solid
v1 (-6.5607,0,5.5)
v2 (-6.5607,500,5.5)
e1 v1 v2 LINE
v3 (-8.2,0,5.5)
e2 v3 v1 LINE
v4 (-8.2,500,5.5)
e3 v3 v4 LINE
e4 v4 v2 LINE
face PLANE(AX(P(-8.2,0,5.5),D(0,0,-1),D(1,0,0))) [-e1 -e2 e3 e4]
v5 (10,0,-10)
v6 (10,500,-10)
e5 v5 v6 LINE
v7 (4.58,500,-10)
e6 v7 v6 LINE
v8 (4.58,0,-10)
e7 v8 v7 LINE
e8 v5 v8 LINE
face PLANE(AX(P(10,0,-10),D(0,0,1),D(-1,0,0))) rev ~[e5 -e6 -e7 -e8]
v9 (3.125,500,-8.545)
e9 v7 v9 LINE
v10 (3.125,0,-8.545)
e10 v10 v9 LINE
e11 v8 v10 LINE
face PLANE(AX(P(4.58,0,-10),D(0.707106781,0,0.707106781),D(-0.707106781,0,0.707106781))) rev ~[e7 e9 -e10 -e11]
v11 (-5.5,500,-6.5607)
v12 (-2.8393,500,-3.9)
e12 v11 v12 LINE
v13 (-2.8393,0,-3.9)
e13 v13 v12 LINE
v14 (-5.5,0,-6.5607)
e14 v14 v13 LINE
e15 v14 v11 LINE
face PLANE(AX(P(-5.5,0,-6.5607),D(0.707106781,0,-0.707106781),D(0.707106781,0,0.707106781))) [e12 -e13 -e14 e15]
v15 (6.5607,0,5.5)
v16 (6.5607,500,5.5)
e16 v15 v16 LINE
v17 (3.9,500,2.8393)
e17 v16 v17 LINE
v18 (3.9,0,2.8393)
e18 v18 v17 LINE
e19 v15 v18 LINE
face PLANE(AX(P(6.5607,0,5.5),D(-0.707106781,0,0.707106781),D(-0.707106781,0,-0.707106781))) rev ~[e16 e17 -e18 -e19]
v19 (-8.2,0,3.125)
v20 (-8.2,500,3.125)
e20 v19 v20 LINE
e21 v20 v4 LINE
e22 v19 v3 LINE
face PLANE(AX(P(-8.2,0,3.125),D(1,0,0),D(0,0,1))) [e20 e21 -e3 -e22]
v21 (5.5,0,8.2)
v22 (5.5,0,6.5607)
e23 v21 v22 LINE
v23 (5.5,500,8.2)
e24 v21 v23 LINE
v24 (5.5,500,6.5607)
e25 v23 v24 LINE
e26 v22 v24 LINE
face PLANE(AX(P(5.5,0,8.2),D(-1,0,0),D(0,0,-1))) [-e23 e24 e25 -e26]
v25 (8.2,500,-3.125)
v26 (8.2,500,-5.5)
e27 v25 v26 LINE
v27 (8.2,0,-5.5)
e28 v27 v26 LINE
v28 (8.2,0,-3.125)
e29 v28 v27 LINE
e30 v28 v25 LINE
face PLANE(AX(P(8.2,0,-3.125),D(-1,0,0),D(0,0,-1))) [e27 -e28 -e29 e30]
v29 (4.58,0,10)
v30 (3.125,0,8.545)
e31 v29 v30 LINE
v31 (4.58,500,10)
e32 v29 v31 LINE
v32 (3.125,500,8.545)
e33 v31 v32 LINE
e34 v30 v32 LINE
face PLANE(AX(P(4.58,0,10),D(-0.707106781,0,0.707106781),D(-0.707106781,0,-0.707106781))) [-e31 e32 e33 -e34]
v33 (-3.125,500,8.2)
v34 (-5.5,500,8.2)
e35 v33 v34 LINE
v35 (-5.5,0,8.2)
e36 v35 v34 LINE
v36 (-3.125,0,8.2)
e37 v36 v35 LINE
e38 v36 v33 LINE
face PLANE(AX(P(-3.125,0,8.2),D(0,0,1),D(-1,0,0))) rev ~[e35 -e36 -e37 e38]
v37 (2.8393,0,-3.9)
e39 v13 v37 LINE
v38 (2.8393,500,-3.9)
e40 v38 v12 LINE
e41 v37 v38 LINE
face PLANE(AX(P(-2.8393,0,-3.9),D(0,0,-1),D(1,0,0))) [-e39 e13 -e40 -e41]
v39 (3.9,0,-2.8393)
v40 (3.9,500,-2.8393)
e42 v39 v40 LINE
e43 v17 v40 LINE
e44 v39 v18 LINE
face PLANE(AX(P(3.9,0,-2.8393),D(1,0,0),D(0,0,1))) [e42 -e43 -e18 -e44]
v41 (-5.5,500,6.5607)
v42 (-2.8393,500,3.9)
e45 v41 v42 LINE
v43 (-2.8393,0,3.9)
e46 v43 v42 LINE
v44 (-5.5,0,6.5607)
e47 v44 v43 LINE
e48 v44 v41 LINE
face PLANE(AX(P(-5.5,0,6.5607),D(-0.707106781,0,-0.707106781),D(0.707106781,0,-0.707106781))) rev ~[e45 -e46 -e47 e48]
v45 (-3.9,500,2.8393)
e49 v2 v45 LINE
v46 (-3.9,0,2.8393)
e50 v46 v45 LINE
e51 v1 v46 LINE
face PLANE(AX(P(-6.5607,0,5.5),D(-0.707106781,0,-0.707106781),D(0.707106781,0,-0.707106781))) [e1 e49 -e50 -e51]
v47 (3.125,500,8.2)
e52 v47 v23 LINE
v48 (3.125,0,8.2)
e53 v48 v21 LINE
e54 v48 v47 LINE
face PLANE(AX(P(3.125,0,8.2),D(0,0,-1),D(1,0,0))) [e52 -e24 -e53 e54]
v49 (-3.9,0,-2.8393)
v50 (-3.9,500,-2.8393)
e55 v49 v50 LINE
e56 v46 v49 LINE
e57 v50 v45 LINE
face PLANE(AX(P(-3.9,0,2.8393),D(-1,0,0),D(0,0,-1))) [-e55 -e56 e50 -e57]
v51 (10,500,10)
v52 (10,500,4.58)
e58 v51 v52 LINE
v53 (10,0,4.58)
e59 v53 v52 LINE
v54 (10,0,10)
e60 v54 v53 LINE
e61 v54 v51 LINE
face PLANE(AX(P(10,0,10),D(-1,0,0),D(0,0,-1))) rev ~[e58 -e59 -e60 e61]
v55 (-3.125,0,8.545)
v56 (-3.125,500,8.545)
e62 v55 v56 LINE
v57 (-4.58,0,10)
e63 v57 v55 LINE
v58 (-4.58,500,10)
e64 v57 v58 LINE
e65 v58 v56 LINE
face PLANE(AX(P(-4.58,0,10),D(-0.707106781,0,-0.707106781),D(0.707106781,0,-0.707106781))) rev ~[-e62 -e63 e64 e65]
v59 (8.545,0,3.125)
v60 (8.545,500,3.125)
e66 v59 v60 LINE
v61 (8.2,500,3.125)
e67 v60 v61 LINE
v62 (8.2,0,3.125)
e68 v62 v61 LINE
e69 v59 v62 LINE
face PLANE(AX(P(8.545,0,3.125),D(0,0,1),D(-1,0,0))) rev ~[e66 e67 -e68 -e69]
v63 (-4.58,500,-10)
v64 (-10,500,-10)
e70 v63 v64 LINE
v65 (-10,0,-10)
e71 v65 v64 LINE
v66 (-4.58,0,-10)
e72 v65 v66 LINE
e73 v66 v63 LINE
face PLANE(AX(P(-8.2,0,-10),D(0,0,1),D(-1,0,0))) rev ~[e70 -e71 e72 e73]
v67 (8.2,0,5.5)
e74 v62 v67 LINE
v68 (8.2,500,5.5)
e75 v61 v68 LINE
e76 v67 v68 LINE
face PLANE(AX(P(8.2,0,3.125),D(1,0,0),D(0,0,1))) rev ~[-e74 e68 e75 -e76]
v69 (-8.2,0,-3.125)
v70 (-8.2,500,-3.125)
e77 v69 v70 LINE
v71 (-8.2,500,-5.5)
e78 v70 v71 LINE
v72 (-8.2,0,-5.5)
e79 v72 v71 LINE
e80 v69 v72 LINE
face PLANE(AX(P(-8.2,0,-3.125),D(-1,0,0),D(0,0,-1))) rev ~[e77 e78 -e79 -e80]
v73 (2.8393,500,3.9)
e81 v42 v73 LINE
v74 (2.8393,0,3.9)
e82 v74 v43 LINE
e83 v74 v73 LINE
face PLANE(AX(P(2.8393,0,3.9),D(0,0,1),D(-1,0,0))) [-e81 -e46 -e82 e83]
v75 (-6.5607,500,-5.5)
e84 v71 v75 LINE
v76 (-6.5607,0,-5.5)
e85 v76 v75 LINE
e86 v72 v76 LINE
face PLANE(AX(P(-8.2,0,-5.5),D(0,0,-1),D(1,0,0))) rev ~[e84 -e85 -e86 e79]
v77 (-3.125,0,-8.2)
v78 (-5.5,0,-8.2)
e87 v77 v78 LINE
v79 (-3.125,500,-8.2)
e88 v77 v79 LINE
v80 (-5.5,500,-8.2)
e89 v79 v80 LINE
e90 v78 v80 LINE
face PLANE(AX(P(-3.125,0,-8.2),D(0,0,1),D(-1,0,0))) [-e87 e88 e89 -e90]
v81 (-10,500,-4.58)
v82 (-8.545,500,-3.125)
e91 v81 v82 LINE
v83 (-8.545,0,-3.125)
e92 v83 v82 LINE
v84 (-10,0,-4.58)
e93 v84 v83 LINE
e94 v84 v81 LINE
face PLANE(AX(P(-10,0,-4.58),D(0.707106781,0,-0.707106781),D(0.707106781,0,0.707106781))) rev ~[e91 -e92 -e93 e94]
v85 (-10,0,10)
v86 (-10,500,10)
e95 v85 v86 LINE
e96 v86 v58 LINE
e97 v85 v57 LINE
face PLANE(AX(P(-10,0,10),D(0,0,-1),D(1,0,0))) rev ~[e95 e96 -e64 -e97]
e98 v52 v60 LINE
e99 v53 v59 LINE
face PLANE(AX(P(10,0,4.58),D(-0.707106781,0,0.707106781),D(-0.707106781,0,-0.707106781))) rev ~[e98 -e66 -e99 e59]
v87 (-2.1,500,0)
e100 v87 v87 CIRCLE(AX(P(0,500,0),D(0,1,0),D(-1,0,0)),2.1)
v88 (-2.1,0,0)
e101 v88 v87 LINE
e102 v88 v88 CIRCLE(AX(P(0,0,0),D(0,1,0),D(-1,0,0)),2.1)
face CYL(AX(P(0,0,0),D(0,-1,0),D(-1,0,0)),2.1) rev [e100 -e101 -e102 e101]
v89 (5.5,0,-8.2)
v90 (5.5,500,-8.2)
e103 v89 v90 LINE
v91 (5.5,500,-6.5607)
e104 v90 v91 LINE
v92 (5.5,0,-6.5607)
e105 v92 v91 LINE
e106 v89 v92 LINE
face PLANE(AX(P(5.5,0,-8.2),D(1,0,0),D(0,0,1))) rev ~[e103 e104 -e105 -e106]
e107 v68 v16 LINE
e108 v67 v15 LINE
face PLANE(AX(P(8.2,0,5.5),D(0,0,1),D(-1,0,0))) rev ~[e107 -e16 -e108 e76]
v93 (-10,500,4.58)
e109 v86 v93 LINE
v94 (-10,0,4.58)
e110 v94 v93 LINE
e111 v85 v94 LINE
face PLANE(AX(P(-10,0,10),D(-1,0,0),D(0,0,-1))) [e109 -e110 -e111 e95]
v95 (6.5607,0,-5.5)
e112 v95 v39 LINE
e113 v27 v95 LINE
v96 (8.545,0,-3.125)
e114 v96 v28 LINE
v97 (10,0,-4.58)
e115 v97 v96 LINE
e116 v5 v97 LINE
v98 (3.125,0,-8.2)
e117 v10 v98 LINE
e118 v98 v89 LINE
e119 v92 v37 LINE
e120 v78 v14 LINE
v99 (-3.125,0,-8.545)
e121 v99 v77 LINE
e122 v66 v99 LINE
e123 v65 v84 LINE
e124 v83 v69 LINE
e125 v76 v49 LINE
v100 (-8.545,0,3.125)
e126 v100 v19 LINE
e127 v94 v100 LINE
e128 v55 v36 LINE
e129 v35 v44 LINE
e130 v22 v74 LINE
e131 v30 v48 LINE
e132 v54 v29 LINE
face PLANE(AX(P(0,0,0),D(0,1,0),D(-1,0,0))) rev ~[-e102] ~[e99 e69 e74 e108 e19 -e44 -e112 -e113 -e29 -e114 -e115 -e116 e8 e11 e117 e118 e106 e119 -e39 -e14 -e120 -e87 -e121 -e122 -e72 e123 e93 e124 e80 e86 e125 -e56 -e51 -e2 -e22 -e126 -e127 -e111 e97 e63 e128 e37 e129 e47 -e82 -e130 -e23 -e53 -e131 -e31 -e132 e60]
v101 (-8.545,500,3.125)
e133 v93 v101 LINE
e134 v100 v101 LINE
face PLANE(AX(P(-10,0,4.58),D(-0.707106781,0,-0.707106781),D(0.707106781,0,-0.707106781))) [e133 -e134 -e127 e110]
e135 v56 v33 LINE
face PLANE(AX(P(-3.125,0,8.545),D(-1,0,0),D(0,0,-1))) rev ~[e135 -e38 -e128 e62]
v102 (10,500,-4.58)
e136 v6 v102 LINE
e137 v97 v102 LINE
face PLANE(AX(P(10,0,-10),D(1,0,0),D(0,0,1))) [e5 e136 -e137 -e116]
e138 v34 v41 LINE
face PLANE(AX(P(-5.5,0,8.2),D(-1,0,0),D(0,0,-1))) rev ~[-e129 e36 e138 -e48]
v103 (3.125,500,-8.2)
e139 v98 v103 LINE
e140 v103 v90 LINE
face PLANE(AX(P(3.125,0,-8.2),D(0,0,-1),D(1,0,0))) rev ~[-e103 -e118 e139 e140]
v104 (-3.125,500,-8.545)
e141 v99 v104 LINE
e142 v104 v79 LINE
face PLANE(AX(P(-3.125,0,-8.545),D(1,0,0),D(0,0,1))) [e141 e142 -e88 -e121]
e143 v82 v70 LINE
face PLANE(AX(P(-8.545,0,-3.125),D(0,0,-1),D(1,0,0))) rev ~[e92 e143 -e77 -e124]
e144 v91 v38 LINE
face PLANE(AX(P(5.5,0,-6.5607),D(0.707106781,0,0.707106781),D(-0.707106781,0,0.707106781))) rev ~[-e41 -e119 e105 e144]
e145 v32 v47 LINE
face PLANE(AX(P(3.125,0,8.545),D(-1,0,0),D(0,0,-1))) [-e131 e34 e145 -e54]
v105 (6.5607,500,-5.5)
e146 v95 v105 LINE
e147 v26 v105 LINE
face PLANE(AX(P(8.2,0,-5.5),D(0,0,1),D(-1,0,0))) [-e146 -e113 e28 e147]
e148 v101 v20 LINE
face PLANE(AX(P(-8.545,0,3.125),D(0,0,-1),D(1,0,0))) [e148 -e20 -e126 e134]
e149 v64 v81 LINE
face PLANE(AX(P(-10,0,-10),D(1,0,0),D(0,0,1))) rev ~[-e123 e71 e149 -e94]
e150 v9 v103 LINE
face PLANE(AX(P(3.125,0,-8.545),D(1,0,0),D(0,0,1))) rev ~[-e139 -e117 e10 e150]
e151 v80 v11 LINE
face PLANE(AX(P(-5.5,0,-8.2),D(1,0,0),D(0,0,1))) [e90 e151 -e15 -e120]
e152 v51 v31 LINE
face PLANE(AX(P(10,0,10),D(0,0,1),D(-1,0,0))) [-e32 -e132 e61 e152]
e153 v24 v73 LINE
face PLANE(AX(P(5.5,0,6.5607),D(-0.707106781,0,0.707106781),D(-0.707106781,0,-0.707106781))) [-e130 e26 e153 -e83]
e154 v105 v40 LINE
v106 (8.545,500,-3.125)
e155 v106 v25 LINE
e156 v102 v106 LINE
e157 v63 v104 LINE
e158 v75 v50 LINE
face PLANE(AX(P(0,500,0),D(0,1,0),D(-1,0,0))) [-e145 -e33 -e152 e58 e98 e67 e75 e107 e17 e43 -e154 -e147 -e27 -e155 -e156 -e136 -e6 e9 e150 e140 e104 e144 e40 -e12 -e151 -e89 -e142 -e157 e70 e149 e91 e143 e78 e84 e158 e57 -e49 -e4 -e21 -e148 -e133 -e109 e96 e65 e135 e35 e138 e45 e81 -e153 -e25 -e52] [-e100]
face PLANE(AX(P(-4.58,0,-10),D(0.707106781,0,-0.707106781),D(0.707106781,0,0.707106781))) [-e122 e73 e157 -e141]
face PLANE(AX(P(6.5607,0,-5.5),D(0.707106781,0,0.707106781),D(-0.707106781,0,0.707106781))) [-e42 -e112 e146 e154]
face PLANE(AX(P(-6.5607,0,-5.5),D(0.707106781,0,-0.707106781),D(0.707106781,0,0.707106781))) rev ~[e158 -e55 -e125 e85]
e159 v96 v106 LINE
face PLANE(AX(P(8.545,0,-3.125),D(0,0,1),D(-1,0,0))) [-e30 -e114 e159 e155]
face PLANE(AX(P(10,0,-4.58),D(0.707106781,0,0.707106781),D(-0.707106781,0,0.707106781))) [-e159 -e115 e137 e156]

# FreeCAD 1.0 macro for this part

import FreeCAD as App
import Part
import Sketcher
from FreeCAD import Vector
Q = App.Units.Quantity


def add_polygon(sketch, points):
    """Adds a closed chain of lines whose ends are joined by coincident constraints."""
    first, n = sketch.GeometryCount, len(points)
    for a, b in zip(points, points[1:] + points[:1]):
        sketch.addGeometry(Part.LineSegment(App.Vector(*a, 0), App.Vector(*b, 0)), False)
    for i in range(n):
        sketch.addConstraint(Sketcher.Constraint("Coincident", first + i, 2, first + (i + 1) % n, 1))

doc = App.newDocument("Part")
body = doc.addObject("PartDesign::Body", "Body")

sketch1 = doc.addObject("Sketcher::SketchObject", "Sketch")
body.addObject(sketch1)
sketch1.AttachmentSupport = (doc.XZ_Plane, [""])
sketch1.MapMode = "FlatFace"
add_polygon(sketch1, [(10, -4.58), (10, -10), (4.58, -10), (3.12, -8.54), (3.12, -8.2), (5.5, -8.2), (5.5, -6.56), (2.84, -3.9), (-2.84, -3.9), (-5.5, -6.56), (-5.5, -8.2), (-3.12, -8.2), (-3.12, -8.54), (-4.58, -10), (-10, -10), (-10, -4.58), (-8.54, -3.12), (-8.2, -3.12), (-8.2, -5.5), (-6.56, -5.5), (-3.9, -2.84), (-3.9, 2.84), (-6.56, 5.5), (-8.2, 5.5), (-8.2, 3.12), (-8.54, 3.12), (-10, 4.58), (-10, 10), (-4.58, 10), (-3.12, 8.54), (-3.12, 8.2), (-5.5, 8.2), (-5.5, 6.56), (-2.84, 3.9), (2.84, 3.9), (5.5, 6.56), (5.5, 8.2), (3.12, 8.2), (3.12, 8.54), (4.58, 10), (10, 10), (10, 4.58), (8.54, 3.12), (8.2, 3.12), (8.2, 5.5), (6.56, 5.5), (3.9, 2.84), (3.9, -2.84), (6.56, -5.5), (8.2, -5.5), (8.2, -3.12), (8.54, -3.12)])
sketch1.addGeometry(Part.Circle(Vector(0, 0, 0), Vector(0, 0, 1), 2.1), False)
sketch1.addConstraint([
    Sketcher.Constraint("Vertical", 0),
    Sketcher.Constraint("Horizontal", 1),
    Sketcher.Constraint("Vertical", 3),
    Sketcher.Constraint("Horizontal", 4),
    Sketcher.Constraint("Vertical", 5),
    Sketcher.Constraint("Horizontal", 7),
    Sketcher.Constraint("Vertical", 9),
    Sketcher.Constraint("Horizontal", 10),
    Sketcher.Constraint("Vertical", 11),
    Sketcher.Constraint("Horizontal", 13),
    Sketcher.Constraint("Vertical", 14),
    Sketcher.Constraint("Horizontal", 16),
    Sketcher.Constraint("Vertical", 17),
    Sketcher.Constraint("Horizontal", 18),
    Sketcher.Constraint("Vertical", 20),
    Sketcher.Constraint("Horizontal", 22),
    Sketcher.Constraint("Vertical", 23),
    Sketcher.Constraint("Horizontal", 24),
    Sketcher.Constraint("Vertical", 26),
    Sketcher.Constraint("Horizontal", 27),
    Sketcher.Constraint("Vertical", 29),
    Sketcher.Constraint("Horizontal", 30),
    Sketcher.Constraint("Vertical", 31),
    Sketcher.Constraint("Horizontal", 33),
    Sketcher.Constraint("Vertical", 35),
    Sketcher.Constraint("Horizontal", 36),
    Sketcher.Constraint("Vertical", 37),
    Sketcher.Constraint("Horizontal", 39),
    Sketcher.Constraint("Vertical", 40),
    Sketcher.Constraint("Horizontal", 42),
    Sketcher.Constraint("Vertical", 43),
    Sketcher.Constraint("Horizontal", 44),
    Sketcher.Constraint("Vertical", 46),
    Sketcher.Constraint("Horizontal", 48),
    Sketcher.Constraint("Vertical", 49),
    Sketcher.Constraint("Horizontal", 50),
    Sketcher.Constraint("Coincident", 52, 3, -1, 1),
    Sketcher.Constraint("Symmetric", 0, 2, 26, 2, -1, 1),
    Sketcher.Constraint("Symmetric", 2, 2, 28, 2, -1, 1),
    Sketcher.Constraint("Symmetric", 4, 2, 30, 2, -1, 1),
    Sketcher.Constraint("Symmetric", 6, 2, 32, 2, -1, 1),
    Sketcher.Constraint("Symmetric", 8, 2, 34, 2, -1, 1),
    Sketcher.Constraint("Symmetric", 10, 2, 36, 2, -1, 1),
    Sketcher.Constraint("Symmetric", 12, 2, 38, 2, -1, 1),
    Sketcher.Constraint("Symmetric", 14, 2, 40, 2, -1, 1),
    Sketcher.Constraint("Symmetric", 15, 2, 41, 2, -1, 1),
    Sketcher.Constraint("Symmetric", 17, 2, 43, 2, -1, 1),
    Sketcher.Constraint("Symmetric", 19, 2, 45, 2, -1, 1),
    Sketcher.Constraint("Symmetric", 21, 2, 47, 2, -1, 1),
    Sketcher.Constraint("Symmetric", 23, 2, 49, 2, -1, 1),
    Sketcher.Constraint("Symmetric", 5, 2, 8, 2, -2),
    Sketcher.Constraint("Symmetric", 3, 2, 10, 2, -2),
    Sketcher.Constraint("Symmetric", 1, 2, 12, 2, -2),
    Sketcher.Constraint("Symmetric", 25, 2, 40, 2, -2),
    Sketcher.Constraint("Symmetric", 24, 2, 41, 2, -2),
    Sketcher.Constraint("Symmetric", 22, 2, 43, 2, -2),
    Sketcher.Constraint("Parallel", 2, 6),
    Sketcher.Constraint("Perpendicular", 6, 8),
    Sketcher.Constraint("Parallel", 8, 12),
    Sketcher.Constraint("Parallel", 12, 15),
    Sketcher.Constraint("Parallel", 15, 19),
    Sketcher.Constraint("Perpendicular", 19, 21),
    Sketcher.Constraint("Parallel", 21, 25),
    Sketcher.Constraint("Parallel", 25, 28),
    Sketcher.Constraint("Parallel", 28, 32),
    Sketcher.Constraint("Perpendicular", 32, 34),
    Sketcher.Constraint("Parallel", 34, 38),
    Sketcher.Constraint("Parallel", 41, 45),
    Sketcher.Constraint("Perpendicular", 45, 47),
    Sketcher.Constraint("Parallel", 47, 51),
    Sketcher.Constraint("Horizontal", 20, 2, 45, 2),
    Sketcher.Constraint("Horizontal", 14, 2, 51, 2),
    Sketcher.Constraint("Equal", 39, 0),
    Sketcher.Constraint("Equal", 50, 3),
    Sketcher.Constraint("Equal", 48, 5),
    Sketcher.Constraint("Equal", 36, 17),
    Sketcher.Constraint("Equal", 33, 20),
    Sketcher.Constraint("Equal", 12, 15),
    Sketcher.Constraint("Equal", 8, 19),
    Sketcher.Constraint("Diameter", 52, Q("4.2 mm")),
    Sketcher.Constraint("DistanceY", 1, 2, 3, 2, Q("1.8 mm")),
    Sketcher.Constraint("DistanceY", 3, 2, 6, 2, Q("4.3 mm")),
    Sketcher.Constraint("DistanceX", 10, 2, 3, 2, Q("6.25 mm")),
    Sketcher.Constraint("DistanceX", -1, 1, 0, 2, Q("10 mm")),
    Sketcher.Constraint("DistanceX", 1, 2, 1, 1, Q("5.42 mm")),
    Sketcher.Constraint("DistanceX", -1, 1, 4, 2, Q("5.5 mm")),
    Sketcher.Constraint("DistanceX", 7, 2, 7, 1, Q("5.6786 mm")),
])
pad1 = doc.addObject("PartDesign::Pad", "Pad")
body.addObject(pad1)
pad1.Profile = sketch1
pad1.Length = 500
pad1.Reversed = True

doc.recompute()
